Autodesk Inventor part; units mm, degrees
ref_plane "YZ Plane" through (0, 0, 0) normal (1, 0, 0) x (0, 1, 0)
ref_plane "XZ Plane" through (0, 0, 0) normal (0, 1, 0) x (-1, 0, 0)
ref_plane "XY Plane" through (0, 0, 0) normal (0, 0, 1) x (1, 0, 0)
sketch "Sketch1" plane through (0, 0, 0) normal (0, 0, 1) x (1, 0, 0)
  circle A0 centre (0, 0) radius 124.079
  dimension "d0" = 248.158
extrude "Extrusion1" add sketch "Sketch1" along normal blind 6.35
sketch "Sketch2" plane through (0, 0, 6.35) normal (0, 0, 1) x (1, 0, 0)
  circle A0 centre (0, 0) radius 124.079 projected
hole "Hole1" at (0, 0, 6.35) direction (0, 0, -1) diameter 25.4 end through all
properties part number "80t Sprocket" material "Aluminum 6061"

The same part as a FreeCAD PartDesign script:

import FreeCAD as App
import Part
import Sketcher

V = App.Vector
Q = App.Units.Quantity

doc = App.newDocument("Part")
body = doc.addObject("PartDesign::Body", "Body")

# Sketch on XY plane
sketch1 = body.newObject("Sketcher::SketchObject", "Sketch")
sketch1.AttachmentSupport = (doc.getObject("XY_Plane"), [""])
sketch1.MapMode = "FlatFace"
sketch1.addGeometry(Part.Circle(V(0, 0, 0), V(0, 0, 1), 124), False)
sketch1.addConstraint(Sketcher.Constraint("Coincident", 0, 3, -1, 1))
sketch1.addConstraint(Sketcher.Constraint("Diameter", 0, Q("9.77 in")))
pad1 = body.newObject("PartDesign::Pad", "Pad")
pad1.Profile = sketch1
pad1.Length = Q("0.25 in")

# Sketch on XY plane
sketch2 = body.newObject("Sketcher::SketchObject", "Sketch001")
sketch2.AttachmentSupport = (doc.getObject("XY_Plane"), [""])
sketch2.MapMode = "FlatFace"
sketch2.AttachmentOffset = App.Placement(V(0, 0, 0.25 * 25.4), App.Rotation())
sketch2.addGeometry(Part.Circle(V(0, 0, 0), V(0, 0, 1), 13), False)
sketch2.addConstraint(Sketcher.Constraint("Coincident", 0, 3, -1, 1))
sketch2.addConstraint(Sketcher.Constraint("Diameter", 0, Q("1 in")))
doc.recompute()
hole = body.newObject("PartDesign::Hole", "Hole")
hole.Profile = sketch2
hole.ThreadType = "None"
hole.Diameter = Q("1 in")
hole.DepthType = "ThroughAll"

doc.recompute()
